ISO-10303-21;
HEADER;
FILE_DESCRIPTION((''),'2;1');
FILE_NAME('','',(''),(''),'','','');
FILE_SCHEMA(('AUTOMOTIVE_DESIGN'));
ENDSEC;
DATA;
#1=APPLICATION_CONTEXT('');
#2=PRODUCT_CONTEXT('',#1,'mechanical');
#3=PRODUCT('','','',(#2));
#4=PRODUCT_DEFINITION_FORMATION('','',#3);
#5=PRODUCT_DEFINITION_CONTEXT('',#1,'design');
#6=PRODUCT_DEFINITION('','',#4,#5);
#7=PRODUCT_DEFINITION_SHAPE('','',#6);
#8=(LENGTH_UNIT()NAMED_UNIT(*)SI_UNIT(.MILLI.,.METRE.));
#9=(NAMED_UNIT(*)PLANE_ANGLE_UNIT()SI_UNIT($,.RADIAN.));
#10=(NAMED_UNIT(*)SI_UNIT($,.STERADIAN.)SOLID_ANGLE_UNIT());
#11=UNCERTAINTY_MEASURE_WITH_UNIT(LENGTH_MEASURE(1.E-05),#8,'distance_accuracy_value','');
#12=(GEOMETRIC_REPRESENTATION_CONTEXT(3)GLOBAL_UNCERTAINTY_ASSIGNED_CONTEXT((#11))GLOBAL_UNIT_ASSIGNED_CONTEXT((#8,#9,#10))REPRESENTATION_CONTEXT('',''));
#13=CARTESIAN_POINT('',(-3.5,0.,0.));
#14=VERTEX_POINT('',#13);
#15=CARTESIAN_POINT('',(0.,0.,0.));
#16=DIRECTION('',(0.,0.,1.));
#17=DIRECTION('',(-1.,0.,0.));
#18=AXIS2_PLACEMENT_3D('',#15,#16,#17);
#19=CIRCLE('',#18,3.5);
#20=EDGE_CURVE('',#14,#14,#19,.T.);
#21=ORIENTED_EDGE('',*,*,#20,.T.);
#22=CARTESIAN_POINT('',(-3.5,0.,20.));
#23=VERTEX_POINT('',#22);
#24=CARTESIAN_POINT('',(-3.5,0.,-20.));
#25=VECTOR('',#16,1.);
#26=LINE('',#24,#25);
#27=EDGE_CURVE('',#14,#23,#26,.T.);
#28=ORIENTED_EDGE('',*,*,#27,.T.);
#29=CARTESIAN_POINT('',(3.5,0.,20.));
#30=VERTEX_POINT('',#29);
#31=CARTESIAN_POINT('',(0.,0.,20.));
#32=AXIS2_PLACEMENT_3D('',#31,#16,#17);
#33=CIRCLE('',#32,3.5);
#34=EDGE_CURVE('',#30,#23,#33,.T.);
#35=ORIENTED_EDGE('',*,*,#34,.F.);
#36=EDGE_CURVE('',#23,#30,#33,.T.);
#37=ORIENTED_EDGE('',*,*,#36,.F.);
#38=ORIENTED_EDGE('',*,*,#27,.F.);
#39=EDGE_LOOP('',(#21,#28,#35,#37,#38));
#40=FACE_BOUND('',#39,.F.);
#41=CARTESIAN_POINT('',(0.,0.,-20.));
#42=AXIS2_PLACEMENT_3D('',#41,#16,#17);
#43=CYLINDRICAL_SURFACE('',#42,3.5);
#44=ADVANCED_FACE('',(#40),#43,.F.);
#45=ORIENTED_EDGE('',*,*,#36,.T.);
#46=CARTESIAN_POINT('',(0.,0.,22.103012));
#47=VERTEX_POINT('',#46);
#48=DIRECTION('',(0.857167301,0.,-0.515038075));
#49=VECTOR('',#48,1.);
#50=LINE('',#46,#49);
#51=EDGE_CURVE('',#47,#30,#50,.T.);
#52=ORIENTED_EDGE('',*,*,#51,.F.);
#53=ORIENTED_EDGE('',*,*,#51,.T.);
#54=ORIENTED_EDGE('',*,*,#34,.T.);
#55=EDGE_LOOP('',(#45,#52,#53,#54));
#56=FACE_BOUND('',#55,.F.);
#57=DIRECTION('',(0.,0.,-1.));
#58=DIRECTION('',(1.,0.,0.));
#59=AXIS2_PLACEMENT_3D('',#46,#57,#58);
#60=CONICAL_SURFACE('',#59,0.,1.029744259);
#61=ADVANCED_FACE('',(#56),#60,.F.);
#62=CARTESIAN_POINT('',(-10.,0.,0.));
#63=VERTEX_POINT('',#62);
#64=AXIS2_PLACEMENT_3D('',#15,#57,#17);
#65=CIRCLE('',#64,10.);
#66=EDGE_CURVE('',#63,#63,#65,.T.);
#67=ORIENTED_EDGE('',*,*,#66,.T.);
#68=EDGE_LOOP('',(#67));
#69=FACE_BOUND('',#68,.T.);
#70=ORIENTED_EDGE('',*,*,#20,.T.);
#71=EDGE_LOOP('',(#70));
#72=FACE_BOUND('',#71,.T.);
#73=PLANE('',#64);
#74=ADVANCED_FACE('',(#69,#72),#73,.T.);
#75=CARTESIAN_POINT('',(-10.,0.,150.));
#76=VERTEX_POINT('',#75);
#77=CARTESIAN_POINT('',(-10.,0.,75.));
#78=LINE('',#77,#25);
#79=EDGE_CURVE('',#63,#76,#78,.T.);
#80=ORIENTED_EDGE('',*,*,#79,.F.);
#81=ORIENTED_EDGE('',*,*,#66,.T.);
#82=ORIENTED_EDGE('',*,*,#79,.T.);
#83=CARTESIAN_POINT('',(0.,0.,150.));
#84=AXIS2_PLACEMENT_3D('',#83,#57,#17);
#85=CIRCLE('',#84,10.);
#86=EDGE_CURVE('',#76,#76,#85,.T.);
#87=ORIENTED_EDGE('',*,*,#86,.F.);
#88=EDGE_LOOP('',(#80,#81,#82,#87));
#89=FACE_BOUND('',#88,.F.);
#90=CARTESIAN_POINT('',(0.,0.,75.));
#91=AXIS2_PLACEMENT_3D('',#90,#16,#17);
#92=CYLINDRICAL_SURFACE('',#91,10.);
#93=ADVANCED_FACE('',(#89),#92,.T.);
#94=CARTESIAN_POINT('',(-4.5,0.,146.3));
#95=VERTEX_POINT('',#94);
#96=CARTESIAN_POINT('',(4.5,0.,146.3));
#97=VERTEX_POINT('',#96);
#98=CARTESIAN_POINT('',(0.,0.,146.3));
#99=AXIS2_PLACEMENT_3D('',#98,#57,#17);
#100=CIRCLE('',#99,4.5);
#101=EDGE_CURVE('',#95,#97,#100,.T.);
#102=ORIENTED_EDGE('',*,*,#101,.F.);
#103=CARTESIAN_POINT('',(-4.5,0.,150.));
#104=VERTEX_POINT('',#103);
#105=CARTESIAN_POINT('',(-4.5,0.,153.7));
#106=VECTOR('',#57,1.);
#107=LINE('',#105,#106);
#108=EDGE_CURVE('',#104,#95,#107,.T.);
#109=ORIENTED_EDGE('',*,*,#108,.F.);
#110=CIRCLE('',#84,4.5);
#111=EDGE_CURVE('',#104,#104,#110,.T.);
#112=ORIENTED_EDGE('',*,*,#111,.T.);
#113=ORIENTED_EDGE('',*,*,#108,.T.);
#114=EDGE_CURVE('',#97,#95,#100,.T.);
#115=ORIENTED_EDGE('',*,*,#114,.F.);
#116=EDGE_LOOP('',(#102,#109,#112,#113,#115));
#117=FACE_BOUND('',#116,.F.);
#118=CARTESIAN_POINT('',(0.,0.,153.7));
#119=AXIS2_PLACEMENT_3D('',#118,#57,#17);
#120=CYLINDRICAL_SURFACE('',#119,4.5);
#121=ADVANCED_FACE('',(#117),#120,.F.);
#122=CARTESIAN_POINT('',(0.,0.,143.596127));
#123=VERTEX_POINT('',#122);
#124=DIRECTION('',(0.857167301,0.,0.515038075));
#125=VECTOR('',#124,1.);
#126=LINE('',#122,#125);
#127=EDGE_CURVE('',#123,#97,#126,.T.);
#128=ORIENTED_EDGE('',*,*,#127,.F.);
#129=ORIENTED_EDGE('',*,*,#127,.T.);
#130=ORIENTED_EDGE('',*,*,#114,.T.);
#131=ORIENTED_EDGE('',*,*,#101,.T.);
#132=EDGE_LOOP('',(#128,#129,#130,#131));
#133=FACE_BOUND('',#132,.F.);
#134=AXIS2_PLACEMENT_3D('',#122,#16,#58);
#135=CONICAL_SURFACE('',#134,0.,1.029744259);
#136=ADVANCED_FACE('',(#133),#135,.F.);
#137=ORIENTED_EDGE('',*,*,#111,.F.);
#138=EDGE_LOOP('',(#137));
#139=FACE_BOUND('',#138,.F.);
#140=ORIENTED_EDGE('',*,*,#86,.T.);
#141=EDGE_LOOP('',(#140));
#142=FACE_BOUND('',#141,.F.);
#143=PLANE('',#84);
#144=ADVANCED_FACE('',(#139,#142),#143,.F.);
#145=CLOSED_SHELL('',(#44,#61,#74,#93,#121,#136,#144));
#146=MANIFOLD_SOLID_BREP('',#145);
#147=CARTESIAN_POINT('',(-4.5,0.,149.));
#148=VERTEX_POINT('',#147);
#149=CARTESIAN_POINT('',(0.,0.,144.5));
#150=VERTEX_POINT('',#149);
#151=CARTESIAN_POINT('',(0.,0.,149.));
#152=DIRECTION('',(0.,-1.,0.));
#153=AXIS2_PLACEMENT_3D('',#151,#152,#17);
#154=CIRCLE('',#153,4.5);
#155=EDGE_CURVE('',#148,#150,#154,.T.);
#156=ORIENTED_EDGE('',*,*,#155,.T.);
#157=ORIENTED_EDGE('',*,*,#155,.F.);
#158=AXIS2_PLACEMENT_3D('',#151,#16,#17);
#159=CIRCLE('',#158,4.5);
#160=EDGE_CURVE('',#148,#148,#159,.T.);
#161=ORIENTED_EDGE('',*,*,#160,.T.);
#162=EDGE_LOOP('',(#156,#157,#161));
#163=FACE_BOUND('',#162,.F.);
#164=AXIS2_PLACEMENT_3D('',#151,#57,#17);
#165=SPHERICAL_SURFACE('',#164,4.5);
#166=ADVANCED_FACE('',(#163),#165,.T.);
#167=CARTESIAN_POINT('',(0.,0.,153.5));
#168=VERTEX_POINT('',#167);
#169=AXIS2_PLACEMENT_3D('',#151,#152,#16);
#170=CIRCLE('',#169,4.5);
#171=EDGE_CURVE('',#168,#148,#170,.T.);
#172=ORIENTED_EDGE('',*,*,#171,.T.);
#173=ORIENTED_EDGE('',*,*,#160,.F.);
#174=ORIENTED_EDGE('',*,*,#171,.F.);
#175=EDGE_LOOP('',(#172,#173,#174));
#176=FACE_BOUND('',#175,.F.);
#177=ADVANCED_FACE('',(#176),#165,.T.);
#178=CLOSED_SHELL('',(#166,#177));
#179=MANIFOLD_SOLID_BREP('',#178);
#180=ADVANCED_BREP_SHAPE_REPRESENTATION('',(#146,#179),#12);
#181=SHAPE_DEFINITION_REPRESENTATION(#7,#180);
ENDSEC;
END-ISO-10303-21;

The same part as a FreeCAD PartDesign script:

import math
import FreeCAD as App
import Part
import Sketcher

V = App.Vector

doc = App.newDocument("Part")
body = doc.addObject("PartDesign::Body", "Body")

sketch1 = doc.addObject("Sketcher::SketchObject", "Sketch")
body.addObject(sketch1)
sketch1.AttachmentSupport = (doc.XZ_Plane, [""])
sketch1.MapMode = "FlatFace"
sketch1.addGeometry([
    Part.LineSegment(V(-10, 150, 0), V(-10, 0, 0)),
    Part.LineSegment(V(-10, 0, 0), V(0, 0, 0)),
    Part.LineSegment(V(0, 0, 0), V(0, 150, 0)),
    Part.LineSegment(V(0, 150, 0), V(-10, 150, 0)),
], False)
sketch1.addConstraint([
    Sketcher.Constraint("Coincident", 0, 2, 1, 1),
    Sketcher.Constraint("Coincident", 1, 2, 2, 1),
    Sketcher.Constraint("Coincident", 2, 2, 3, 1),
    Sketcher.Constraint("Coincident", 3, 2, 0, 1),
    Sketcher.Constraint("Vertical", 0),
    Sketcher.Constraint("Horizontal", 1),
    Sketcher.Constraint("Vertical", 2),
    Sketcher.Constraint("Horizontal", 3),
    Sketcher.Constraint("Coincident", 1, 2, -1, 1),
    Sketcher.Constraint("DistanceX", 1, 1, 1, 2, 10.0),
    Sketcher.Constraint("DistanceY", 0, 2, 0, 1, 150.0),
])
revolution = doc.addObject("PartDesign::Revolution", "Revolution")
body.addObject(revolution)
revolution.Profile = sketch1
revolution.ReferenceAxis = (sketch1, ["V_Axis"])
revolution.Angle = 360

sketch2 = doc.addObject("Sketcher::SketchObject", "Sketch001")
body.addObject(sketch2)
sketch2.AttachmentSupport = (doc.XY_Plane, [""])
sketch2.MapMode = "FlatFace"
sketch2.AttachmentOffset = App.Placement(V(0, 0, 150), App.Rotation())
sketch2.addGeometry(Part.Circle(V(0, 0, 0), V(0, 0, 1), 4.5), False)
sketch2.addConstraint([
    Sketcher.Constraint("Coincident", 0, 3, -1, 1),
    Sketcher.Constraint("Diameter", 0, 9.0),
])
doc.recompute()
hole = doc.addObject("PartDesign::Hole", "Hole")
body.addObject(hole)
hole.Profile = sketch2
hole.ThreadType = "None"
hole.Diameter = 9
hole.DepthType = "Dimension"
hole.Depth = 3.7
hole.DrillPoint = "Angled"
hole.DrillPointAngle = 118

sketch3 = doc.addObject("Sketcher::SketchObject", "Sketch002")
body.addObject(sketch3)
sketch3.AttachmentSupport = (doc.XY_Plane, [""])
sketch3.MapMode = "FlatFace"
sketch3.addGeometry(Part.Circle(V(0, 0, 0), V(0, 0, 1), 3.5), False)
sketch3.addConstraint([
    Sketcher.Constraint("Coincident", 0, 3, -1, 1),
    Sketcher.Constraint("Diameter", 0, 7.0),
])
doc.recompute()
hole2 = doc.addObject("PartDesign::Hole", "Hole001")
body.addObject(hole2)
hole2.Profile = sketch3
hole2.ThreadType = "None"
hole2.Diameter = 7
hole2.DepthType = "Dimension"
hole2.Depth = 20
hole2.DrillPoint = "Angled"
hole2.DrillPointAngle = 118
hole2.Reversed = True
body2 = doc.addObject("PartDesign::Body", "Body001")

sketch4 = doc.addObject("Sketcher::SketchObject", "Sketch003")
body2.addObject(sketch4)
sketch4.AttachmentSupport = (doc.getObject("XZ_Plane001"), [""])
sketch4.MapMode = "FlatFace"
sketch4.addGeometry([
    Part.LineSegment(V(0, 144.5, 0), V(0, 153.5, 0)),
    Part.ArcOfCircle(Part.Circle(V(0, 149, 0), V(0, 0, 1), 4.5), math.radians(90), math.radians(180)),
    Part.ArcOfCircle(Part.Circle(V(0, 149, 0), V(0, 0, 1), 4.5), math.radians(180), math.radians(270)),
], False)
sketch4.addConstraint([
    Sketcher.Constraint("Coincident", 0, 2, 1, 1),
    Sketcher.Constraint("Tangent", 1, 2, 2, 1),
    Sketcher.Constraint("Coincident", 2, 2, 0, 1),
    Sketcher.Constraint("Vertical", 0),
    Sketcher.Constraint("Equal", 1, 2),
    Sketcher.Constraint("PointOnObject", 1, 3, -2),
    Sketcher.Constraint("PointOnObject", 0, 2, -2),
    Sketcher.Constraint("Horizontal", 2, 3, 1, 2),
    Sketcher.Constraint("Radius", 1, 4.5),
    Sketcher.Constraint("DistanceY", -1, 1, 1, 3, 149.0),
])
revolution2 = doc.addObject("PartDesign::Revolution", "Revolution001")
body2.addObject(revolution2)
revolution2.Profile = sketch4
revolution2.ReferenceAxis = (sketch4, ["V_Axis"])
revolution2.Angle = 360

doc.recompute()
